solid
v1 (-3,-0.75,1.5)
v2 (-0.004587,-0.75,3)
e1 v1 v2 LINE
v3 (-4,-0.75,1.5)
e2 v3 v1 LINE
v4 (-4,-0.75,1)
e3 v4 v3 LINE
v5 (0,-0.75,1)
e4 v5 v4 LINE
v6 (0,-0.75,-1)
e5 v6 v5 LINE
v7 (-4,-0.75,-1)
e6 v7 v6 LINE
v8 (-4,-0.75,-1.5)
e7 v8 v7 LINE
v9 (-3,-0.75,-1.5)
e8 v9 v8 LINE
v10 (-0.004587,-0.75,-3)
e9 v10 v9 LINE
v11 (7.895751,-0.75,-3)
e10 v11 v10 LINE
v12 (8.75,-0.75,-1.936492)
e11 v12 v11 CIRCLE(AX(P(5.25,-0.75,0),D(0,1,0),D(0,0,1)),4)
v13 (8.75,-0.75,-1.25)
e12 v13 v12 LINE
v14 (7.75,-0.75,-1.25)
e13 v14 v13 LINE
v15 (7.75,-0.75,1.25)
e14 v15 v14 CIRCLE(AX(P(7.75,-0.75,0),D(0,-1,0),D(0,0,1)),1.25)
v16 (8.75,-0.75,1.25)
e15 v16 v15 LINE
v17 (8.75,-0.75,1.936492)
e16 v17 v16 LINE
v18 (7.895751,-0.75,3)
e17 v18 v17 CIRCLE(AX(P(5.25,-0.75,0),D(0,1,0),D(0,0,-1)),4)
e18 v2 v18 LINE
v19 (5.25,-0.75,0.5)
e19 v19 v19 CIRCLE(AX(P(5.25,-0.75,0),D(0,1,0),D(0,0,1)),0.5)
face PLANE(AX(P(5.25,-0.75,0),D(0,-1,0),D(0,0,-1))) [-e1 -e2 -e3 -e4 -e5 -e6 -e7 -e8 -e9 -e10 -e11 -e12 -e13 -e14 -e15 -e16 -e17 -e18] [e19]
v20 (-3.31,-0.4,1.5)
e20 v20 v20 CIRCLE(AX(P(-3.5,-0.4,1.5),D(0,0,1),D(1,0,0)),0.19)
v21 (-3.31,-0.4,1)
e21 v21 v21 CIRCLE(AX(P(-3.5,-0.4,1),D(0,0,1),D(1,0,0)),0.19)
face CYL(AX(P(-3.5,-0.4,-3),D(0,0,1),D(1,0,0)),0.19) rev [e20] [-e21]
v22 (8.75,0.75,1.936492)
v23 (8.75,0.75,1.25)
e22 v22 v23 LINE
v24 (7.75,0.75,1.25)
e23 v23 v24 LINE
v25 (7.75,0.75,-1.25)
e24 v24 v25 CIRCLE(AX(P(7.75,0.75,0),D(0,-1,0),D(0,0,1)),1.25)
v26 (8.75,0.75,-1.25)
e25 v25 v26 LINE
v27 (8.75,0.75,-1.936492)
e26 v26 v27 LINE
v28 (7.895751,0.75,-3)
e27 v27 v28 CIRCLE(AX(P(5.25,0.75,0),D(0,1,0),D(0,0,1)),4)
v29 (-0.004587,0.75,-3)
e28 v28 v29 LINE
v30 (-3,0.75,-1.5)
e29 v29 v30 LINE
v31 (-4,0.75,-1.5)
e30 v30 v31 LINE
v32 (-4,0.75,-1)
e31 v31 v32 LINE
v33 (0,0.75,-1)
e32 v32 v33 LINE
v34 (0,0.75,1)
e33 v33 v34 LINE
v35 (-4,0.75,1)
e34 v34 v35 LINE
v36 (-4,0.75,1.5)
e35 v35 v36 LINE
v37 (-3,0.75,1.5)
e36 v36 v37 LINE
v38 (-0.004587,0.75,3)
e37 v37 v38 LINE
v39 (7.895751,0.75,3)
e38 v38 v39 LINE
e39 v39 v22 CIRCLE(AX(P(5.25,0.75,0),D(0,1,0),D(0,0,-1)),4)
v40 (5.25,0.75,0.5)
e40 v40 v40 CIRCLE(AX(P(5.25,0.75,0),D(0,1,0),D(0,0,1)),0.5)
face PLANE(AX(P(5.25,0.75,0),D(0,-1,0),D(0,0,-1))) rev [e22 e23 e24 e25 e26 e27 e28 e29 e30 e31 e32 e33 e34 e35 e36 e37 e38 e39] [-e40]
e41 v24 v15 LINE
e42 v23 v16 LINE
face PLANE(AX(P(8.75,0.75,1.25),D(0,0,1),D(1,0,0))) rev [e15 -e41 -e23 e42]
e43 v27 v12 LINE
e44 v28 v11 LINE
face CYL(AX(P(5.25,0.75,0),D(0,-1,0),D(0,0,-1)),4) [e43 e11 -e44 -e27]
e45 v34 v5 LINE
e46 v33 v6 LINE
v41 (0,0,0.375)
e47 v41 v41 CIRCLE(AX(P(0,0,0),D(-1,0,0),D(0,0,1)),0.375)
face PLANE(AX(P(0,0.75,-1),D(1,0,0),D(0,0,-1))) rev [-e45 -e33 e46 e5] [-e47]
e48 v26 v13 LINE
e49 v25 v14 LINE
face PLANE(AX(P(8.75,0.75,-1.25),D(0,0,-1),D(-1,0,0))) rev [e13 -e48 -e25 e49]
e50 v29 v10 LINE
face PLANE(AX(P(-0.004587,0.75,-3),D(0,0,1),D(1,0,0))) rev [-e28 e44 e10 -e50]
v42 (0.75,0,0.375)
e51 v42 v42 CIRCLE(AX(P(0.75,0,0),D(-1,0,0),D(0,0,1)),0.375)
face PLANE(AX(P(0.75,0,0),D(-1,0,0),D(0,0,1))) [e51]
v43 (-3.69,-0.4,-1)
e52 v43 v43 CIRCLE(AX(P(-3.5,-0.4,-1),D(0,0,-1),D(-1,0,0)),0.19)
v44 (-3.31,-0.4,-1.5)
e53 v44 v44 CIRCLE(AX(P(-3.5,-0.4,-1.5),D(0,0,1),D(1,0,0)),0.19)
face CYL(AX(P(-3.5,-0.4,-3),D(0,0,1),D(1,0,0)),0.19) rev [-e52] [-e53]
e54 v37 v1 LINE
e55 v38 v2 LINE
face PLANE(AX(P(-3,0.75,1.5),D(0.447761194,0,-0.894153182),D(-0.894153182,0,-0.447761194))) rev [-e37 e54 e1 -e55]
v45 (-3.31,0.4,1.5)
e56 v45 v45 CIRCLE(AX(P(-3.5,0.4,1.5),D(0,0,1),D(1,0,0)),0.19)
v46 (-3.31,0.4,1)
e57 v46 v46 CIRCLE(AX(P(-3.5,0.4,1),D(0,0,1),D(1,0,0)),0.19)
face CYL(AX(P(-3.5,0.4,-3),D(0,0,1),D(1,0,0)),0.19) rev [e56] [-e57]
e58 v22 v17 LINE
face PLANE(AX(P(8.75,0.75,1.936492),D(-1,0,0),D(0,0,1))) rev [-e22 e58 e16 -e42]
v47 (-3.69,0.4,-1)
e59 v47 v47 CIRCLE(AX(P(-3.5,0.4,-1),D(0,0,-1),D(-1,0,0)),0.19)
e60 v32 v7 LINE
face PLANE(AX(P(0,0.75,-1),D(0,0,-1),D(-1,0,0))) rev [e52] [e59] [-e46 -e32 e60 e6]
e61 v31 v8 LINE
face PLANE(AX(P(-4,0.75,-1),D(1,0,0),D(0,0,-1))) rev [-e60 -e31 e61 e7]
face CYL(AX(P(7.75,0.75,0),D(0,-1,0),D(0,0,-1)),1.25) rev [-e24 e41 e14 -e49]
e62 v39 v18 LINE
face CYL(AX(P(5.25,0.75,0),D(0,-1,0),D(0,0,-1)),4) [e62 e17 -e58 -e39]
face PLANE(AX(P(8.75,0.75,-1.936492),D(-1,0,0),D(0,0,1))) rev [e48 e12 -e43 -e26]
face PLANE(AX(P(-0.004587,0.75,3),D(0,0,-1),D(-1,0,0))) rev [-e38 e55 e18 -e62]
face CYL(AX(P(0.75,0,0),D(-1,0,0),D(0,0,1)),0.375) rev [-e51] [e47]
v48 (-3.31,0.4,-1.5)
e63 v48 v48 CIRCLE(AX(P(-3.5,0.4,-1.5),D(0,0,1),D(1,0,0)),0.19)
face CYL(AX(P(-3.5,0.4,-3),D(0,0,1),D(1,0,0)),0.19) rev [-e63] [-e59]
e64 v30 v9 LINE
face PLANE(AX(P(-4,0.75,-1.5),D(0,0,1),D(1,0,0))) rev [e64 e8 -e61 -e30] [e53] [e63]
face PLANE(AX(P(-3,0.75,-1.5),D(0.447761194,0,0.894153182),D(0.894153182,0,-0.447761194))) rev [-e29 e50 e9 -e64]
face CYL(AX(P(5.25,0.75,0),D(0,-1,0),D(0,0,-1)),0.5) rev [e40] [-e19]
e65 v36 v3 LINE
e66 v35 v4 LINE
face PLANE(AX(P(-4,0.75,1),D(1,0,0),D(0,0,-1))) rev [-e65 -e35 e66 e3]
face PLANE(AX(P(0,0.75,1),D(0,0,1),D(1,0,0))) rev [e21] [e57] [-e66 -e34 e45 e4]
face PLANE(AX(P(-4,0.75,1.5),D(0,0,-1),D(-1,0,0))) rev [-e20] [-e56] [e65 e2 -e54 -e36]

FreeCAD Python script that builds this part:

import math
import FreeCAD as App
import Part
import Sketcher
from FreeCAD import Vector

doc = App.newDocument("Part")
body = doc.addObject("PartDesign::Body", "Body")

# Sketch on XZ plane
sketch1 = doc.addObject("Sketcher::SketchObject", "Sketch")
body.addObject(sketch1)
sketch1.AttachmentSupport = (doc.XZ_Plane, [""])
sketch1.MapMode = "FlatFace"
sketch1.addGeometry(Part.LineSegment(Vector(-4, -1, 0), Vector(0, -1, 0)), False)
sketch1.addGeometry(Part.LineSegment(Vector(0, -1, 0), Vector(0, 1, 0)), False)
sketch1.addGeometry(Part.LineSegment(Vector(0, 1, 0), Vector(-4, 1, 0)), False)
sketch1.addGeometry(Part.LineSegment(Vector(-4, 1, 0), Vector(-4, 1.5, 0)), False)
sketch1.addGeometry(Part.LineSegment(Vector(-4, 1.5, 0), Vector(-3, 1.5, 0)), False)
sketch1.addGeometry(Part.LineSegment(Vector(-3, 1.5, 0), Vector(0, 3, 0)), False)
sketch1.addGeometry(Part.LineSegment(Vector(0, 3, 0), Vector(7.9, 3, 0)), False)
sketch1.addGeometry(Part.ArcOfCircle(Part.Circle(Vector(5.3, 0, 0), Vector(0, 0, 1), 4), math.radians(28.96), math.radians(48.59)), False)
sketch1.addGeometry(Part.LineSegment(Vector(8.8, 1.9, 0), Vector(8.8, 1.2, 0)), False)
sketch1.addGeometry(Part.LineSegment(Vector(8.8, 1.2, 0), Vector(7.8, 1.2, 0)), False)
sketch1.addGeometry(Part.ArcOfCircle(Part.Circle(Vector(7.8, 0, 0), Vector(0, 0, 1), 1.2), math.radians(90), math.radians(270)), False)
sketch1.addGeometry(Part.LineSegment(Vector(7.8, -1.2, 0), Vector(8.8, -1.2, 0)), False)
sketch1.addGeometry(Part.LineSegment(Vector(8.8, -1.2, 0), Vector(8.8, -1.9, 0)), False)
sketch1.addGeometry(Part.ArcOfCircle(Part.Circle(Vector(5.3, 0, 0), Vector(0, 0, 1), 4), math.radians(-48.59), math.radians(-28.96)), False)
sketch1.addGeometry(Part.LineSegment(Vector(7.9, -3, 0), Vector(0, -3, 0)), False)
sketch1.addGeometry(Part.LineSegment(Vector(0, -3, 0), Vector(-3, -1.5, 0)), False)
sketch1.addGeometry(Part.LineSegment(Vector(-3, -1.5, 0), Vector(-4, -1.5, 0)), False)
sketch1.addGeometry(Part.LineSegment(Vector(-4, -1.5, 0), Vector(-4, -1, 0)), False)
sketch1.addGeometry(Part.Circle(Vector(5.2, 0, 0), Vector(0, 0, 1), 0.5), False)
sketch1.addConstraint(Sketcher.Constraint("Coincident", 0, 2, 1, 1))
sketch1.addConstraint(Sketcher.Constraint("Coincident", 1, 2, 2, 1))
sketch1.addConstraint(Sketcher.Constraint("Coincident", 2, 2, 3, 1))
sketch1.addConstraint(Sketcher.Constraint("Coincident", 3, 2, 4, 1))
sketch1.addConstraint(Sketcher.Constraint("Coincident", 4, 2, 5, 1))
sketch1.addConstraint(Sketcher.Constraint("Coincident", 5, 2, 6, 1))
sketch1.addConstraint(Sketcher.Constraint("Coincident", 6, 2, 7, 2))
sketch1.addConstraint(Sketcher.Constraint("Coincident", 7, 1, 8, 1))
sketch1.addConstraint(Sketcher.Constraint("Coincident", 8, 2, 9, 1))
sketch1.addConstraint(Sketcher.Constraint("Tangent", 9, 2, 10, 1))
sketch1.addConstraint(Sketcher.Constraint("Tangent", 10, 2, 11, 1))
sketch1.addConstraint(Sketcher.Constraint("Coincident", 11, 2, 12, 1))
sketch1.addConstraint(Sketcher.Constraint("Coincident", 12, 2, 13, 2))
sketch1.addConstraint(Sketcher.Constraint("Coincident", 13, 1, 14, 1))
sketch1.addConstraint(Sketcher.Constraint("Coincident", 14, 2, 15, 1))
sketch1.addConstraint(Sketcher.Constraint("Coincident", 15, 2, 16, 1))
sketch1.addConstraint(Sketcher.Constraint("Coincident", 16, 2, 17, 1))
sketch1.addConstraint(Sketcher.Constraint("Coincident", 17, 2, 0, 1))
sketch1.addConstraint(Sketcher.Constraint("Horizontal", 0))
sketch1.addConstraint(Sketcher.Constraint("Vertical", 1))
sketch1.addConstraint(Sketcher.Constraint("Horizontal", 2))
sketch1.addConstraint(Sketcher.Constraint("Vertical", 3))
sketch1.addConstraint(Sketcher.Constraint("Horizontal", 4))
sketch1.addConstraint(Sketcher.Constraint("Horizontal", 6))
sketch1.addConstraint(Sketcher.Constraint("Vertical", 8))
sketch1.addConstraint(Sketcher.Constraint("Horizontal", 9))
sketch1.addConstraint(Sketcher.Constraint("Horizontal", 11))
sketch1.addConstraint(Sketcher.Constraint("Vertical", 12))
sketch1.addConstraint(Sketcher.Constraint("Horizontal", 14))
sketch1.addConstraint(Sketcher.Constraint("Horizontal", 16))
sketch1.addConstraint(Sketcher.Constraint("Vertical", 17))
sketch1.addConstraint(Sketcher.Constraint("Coincident", 13, 3, 7, 3))
sketch1.addConstraint(Sketcher.Constraint("Coincident", 18, 3, 7, 3))
sketch1.addConstraint(Sketcher.Constraint("Equal", 7, 13))
sketch1.addConstraint(Sketcher.Constraint("Symmetric", 0, 2, 1, 2, -1, 1))
sketch1.addConstraint(Sketcher.Constraint("Symmetric", 8, 2, 11, 2, -1))
sketch1.addConstraint(Sketcher.Constraint("Symmetric", 6, 2, 13, 1, -1))
sketch1.addConstraint(Sketcher.Constraint("Symmetric", 4, 2, 15, 2, -1))
sketch1.addConstraint(Sketcher.Constraint("Vertical", 5, 2, 14, 2))
sketch1.addConstraint(Sketcher.Constraint("Vertical", 3, 2, 16, 2))
sketch1.addConstraint(Sketcher.Constraint("Equal", 4, 9))
sketch1.addConstraint(Sketcher.Constraint("Diameter", 18, 1.0))
sketch1.addConstraint(Sketcher.Constraint("Radius", 7, 4.0))
sketch1.addConstraint(Sketcher.Constraint("DistanceX", 0, 1, 0, 2, 4.0))
sketch1.addConstraint(Sketcher.Constraint("DistanceX", 4, 1, 4, 2, 1.0))
sketch1.addConstraint(Sketcher.Constraint("DistanceY", 1, 1, 1, 2, 2.0))
sketch1.addConstraint(Sketcher.Constraint("Radius", 10, 1.25))
sketch1.addConstraint(Sketcher.Constraint("DistanceY", 3, 1, 3, 2, 0.5))
sketch1.addConstraint(Sketcher.Constraint("DistanceY", -1, 1, 5, 2, 3.0))
sketch1.addConstraint(Sketcher.Constraint("DistanceX", 7, 3, 10, 3, 2.5))
sketch1.addConstraint(Sketcher.Constraint("Distance", 5, 3.35))
sketch1.addConstraint(Sketcher.Constraint("DistanceX", -1, 1, 7, 3, 5.25))
pad1 = doc.addObject("PartDesign::Pad", "Pad")
body.addObject(pad1)
pad1.Profile = sketch1
pad1.Length = 1.5
pad1.Midplane = True

# Sketch on XY plane
sketch2 = doc.addObject("Sketcher::SketchObject", "Sketch001")
body.addObject(sketch2)
sketch2.AttachmentSupport = (doc.XY_Plane, [""])
sketch2.MapMode = "FlatFace"
sketch2.AttachmentOffset = App.Placement(Vector(0, 0, 1.5), App.Rotation())
sketch2.addGeometry(Part.Circle(Vector(-3.5, 0.4, 0), Vector(0, 0, 1), 0.19), False)
sketch2.addGeometry(Part.Circle(Vector(-3.5, -0.4, 0), Vector(0, 0, 1), 0.19), False)
sketch2.addConstraint(Sketcher.Constraint("Equal", 0, 1))
sketch2.addConstraint(Sketcher.Constraint("Symmetric", 0, 3, 1, 3, -1))
sketch2.addConstraint(Sketcher.Constraint("Diameter", 0, 0.38))
sketch2.addConstraint(Sketcher.Constraint("DistanceX", 0, 3, -1, 1, 3.5))
sketch2.addConstraint(Sketcher.Constraint("DistanceY", -1, 1, 0, 3, 0.4))
pocket1 = doc.addObject("PartDesign::Pocket", "Pocket")
body.addObject(pocket1)
pocket1.Profile = sketch2
pocket1.Type = "ThroughAll"

# Sketch on YZ plane
sketch3 = doc.addObject("Sketcher::SketchObject", "Sketch002")
body.addObject(sketch3)
sketch3.AttachmentSupport = (doc.YZ_Plane, [""])
sketch3.MapMode = "FlatFace"
sketch3.addGeometry(Part.Circle(Vector(0, 0, 0), Vector(0, 0, 1), 0.38), False)
sketch3.addConstraint(Sketcher.Constraint("Coincident", 0, 3, -1, 1))
sketch3.addConstraint(Sketcher.Constraint("Diameter", 0, 0.75))
pocket2 = doc.addObject("PartDesign::Pocket", "Pocket001")
body.addObject(pocket2)
pocket2.Profile = sketch3
pocket2.Length = 0.75
pocket2.Reversed = True

doc.recompute()
